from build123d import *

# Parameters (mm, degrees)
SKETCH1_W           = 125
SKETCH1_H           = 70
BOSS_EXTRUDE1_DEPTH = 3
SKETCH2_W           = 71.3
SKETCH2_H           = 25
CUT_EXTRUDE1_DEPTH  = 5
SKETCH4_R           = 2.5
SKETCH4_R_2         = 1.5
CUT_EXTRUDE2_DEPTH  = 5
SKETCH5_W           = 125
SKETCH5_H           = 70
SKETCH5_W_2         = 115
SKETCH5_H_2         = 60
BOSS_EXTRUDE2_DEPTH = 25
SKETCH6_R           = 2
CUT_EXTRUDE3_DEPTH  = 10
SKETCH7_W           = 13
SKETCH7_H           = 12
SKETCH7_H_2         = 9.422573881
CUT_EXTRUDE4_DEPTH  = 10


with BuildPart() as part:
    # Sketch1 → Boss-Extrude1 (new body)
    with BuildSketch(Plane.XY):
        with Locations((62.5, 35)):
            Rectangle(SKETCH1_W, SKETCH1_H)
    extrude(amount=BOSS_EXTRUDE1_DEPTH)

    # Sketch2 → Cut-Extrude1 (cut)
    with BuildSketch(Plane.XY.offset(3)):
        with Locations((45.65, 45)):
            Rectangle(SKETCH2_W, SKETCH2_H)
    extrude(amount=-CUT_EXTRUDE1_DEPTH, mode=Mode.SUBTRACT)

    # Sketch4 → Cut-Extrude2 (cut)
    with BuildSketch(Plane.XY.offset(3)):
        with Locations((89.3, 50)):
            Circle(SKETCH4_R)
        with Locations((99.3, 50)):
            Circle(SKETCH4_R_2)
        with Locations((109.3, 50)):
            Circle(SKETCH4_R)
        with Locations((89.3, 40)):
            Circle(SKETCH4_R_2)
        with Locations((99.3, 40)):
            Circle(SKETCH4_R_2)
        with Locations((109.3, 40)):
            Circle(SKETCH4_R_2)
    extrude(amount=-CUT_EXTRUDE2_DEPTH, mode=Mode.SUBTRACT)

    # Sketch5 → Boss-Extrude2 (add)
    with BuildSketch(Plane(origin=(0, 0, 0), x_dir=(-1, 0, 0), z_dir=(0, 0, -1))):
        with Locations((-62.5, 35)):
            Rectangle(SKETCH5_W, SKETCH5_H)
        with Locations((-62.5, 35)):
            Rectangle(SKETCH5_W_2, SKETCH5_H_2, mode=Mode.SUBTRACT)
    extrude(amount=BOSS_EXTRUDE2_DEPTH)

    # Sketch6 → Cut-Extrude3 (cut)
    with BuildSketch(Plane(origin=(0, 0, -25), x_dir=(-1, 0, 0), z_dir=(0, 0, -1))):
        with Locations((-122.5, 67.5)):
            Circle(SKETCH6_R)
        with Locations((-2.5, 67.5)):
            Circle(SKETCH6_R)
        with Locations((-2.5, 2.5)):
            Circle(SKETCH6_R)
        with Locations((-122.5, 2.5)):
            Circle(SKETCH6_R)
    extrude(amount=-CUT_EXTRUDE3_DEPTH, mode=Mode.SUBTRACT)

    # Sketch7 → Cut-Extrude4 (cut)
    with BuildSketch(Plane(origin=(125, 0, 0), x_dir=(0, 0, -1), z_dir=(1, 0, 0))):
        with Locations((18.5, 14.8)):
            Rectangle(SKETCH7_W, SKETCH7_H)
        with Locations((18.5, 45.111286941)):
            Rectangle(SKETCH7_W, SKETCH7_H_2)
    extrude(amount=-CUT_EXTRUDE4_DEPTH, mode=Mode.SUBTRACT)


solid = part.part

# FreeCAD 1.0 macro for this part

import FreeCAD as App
import Part
import Sketcher

V = App.Vector
Q = App.Units.Quantity


def add_polygon(sketch, points):
    """Adds a closed chain of lines whose ends are joined by coincident constraints."""
    first, n = sketch.GeometryCount, len(points)
    for a, b in zip(points, points[1:] + points[:1]):
        sketch.addGeometry(Part.LineSegment(App.Vector(*a, 0), App.Vector(*b, 0)), False)
    for i in range(n):
        sketch.addConstraint(Sketcher.Constraint("Coincident", first + i, 2, first + (i + 1) % n, 1))

doc = App.newDocument("Part")
params = doc.addObject("Spreadsheet::Sheet", "Params")
for row, (alias, value) in enumerate([
    ("sketch1_width", "125 mm"),
    ("sketch1_height", "70 mm"),
    ("pad1_length", "3 mm"),
    ("sketch2_height", "25 mm"),
    ("sketch2_width", "71.3 mm"),
    ("pocket1_length", "5 mm"),
    ("sketch3_diameter", "5 mm"),
    ("sketch3_diameter2", "3 mm"),
    ("pocket2_length", "5 mm"),
    ("sketch4_width", "125 mm"),
    ("sketch4_width2", "115 mm"),
    ("sketch4_height", "70 mm"),
    ("sketch4_height2", "60 mm"),
    ("pad2_length", "25 mm"),
    ("sketch5_diameter", "4 mm"),
    ("pocket3_length", "10 mm"),
    ("sketch6_width", "12 mm"),
    ("sketch6_height", "13 mm"),
    ("pocket4_length", "10 mm"),
], start=1):
    params.set(f"A{row}", alias)
    params.set(f"B{row}", "=" + value)
    params.setAlias(f"B{row}", alias)

body = doc.addObject("PartDesign::Body", "Body")

# Sketch on XY plane
sketch1 = doc.addObject("Sketcher::SketchObject", "Sketch")
body.addObject(sketch1)
sketch1.AttachmentSupport = (doc.XY_Plane, [""])
sketch1.MapMode = "FlatFace"
add_polygon(sketch1, [(0, 70), (0, 0), (125, 0), (125, 70)])  # lines 0-3
sketch1.addConstraint(Sketcher.Constraint("Vertical", 0))
sketch1.addConstraint(Sketcher.Constraint("Horizontal", 1))
sketch1.addConstraint(Sketcher.Constraint("Vertical", 2))
sketch1.addConstraint(Sketcher.Constraint("Horizontal", 3))
sketch1.addConstraint(Sketcher.Constraint("Coincident", 0, 2, -1, 1))
sketch1.addConstraint(Sketcher.Constraint("DistanceX", 1, 1, 1, 2, Q("125 mm")))
sketch1.addConstraint(Sketcher.Constraint("DistanceY", 0, 2, 0, 1, Q("70 mm")))
sketch1.setExpression("Constraints[9]", "Params.sketch1_width")
sketch1.setExpression("Constraints[10]", "Params.sketch1_height")
pad1 = doc.addObject("PartDesign::Pad", "Pad")
body.addObject(pad1)
pad1.Profile = sketch1
pad1.setExpression("Length", "Params.pad1_length")

# Sketch on XY plane
sketch2 = doc.addObject("Sketcher::SketchObject", "Sketch001")
body.addObject(sketch2)
sketch2.AttachmentSupport = (doc.XY_Plane, [""])
sketch2.MapMode = "FlatFace"
sketch2.AttachmentOffset = App.Placement(V(0, 0, 3), App.Rotation())
add_polygon(sketch2, [(10, 58), (10, 32), (81, 32), (81, 58)])  # lines 0-3
sketch2.addConstraint(Sketcher.Constraint("Vertical", 0))
sketch2.addConstraint(Sketcher.Constraint("Horizontal", 1))
sketch2.addConstraint(Sketcher.Constraint("Vertical", 2))
sketch2.addConstraint(Sketcher.Constraint("Horizontal", 3))
sketch2.addConstraint(Sketcher.Constraint("DistanceY", 0, 2, 0, 1, Q("25 mm")))
sketch2.addConstraint(Sketcher.Constraint("DistanceX", 1, 1, 1, 2, Q("71.3 mm")))
sketch2.addConstraint(Sketcher.Constraint("DistanceX", -1, 1, 0, 2, Q("10 mm")))
sketch2.addConstraint(Sketcher.Constraint("DistanceY", -1, 1, 0, 2, Q("32.5 mm")))
sketch2.setExpression("Constraints[8]", "Params.sketch2_height")
sketch2.setExpression("Constraints[9]", "Params.sketch2_width")
pocket1 = doc.addObject("PartDesign::Pocket", "Pocket")
body.addObject(pocket1)
pocket1.Profile = sketch2
pocket1.setExpression("Length", "Params.pocket1_length")

# Sketch on XY plane
sketch3 = doc.addObject("Sketcher::SketchObject", "Sketch002")
body.addObject(sketch3)
sketch3.AttachmentSupport = (doc.XY_Plane, [""])
sketch3.MapMode = "FlatFace"
sketch3.AttachmentOffset = App.Placement(V(0, 0, 3), App.Rotation())
sketch3.addGeometry(Part.Circle(V(89.3, 50, 0), V(0, 0, 1), 2.5), False)
sketch3.addGeometry(Part.Circle(V(99.3, 50, 0), V(0, 0, 1), 1.5), False)
sketch3.addGeometry(Part.Circle(V(109.3, 50, 0), V(0, 0, 1), 2.5), False)
sketch3.addGeometry(Part.Circle(V(89.3, 40, 0), V(0, 0, 1), 1.5), False)
sketch3.addGeometry(Part.Circle(V(99.3, 40, 0), V(0, 0, 1), 1.5), False)
sketch3.addGeometry(Part.Circle(V(109.3, 40, 0), V(0, 0, 1), 1.5), False)
sketch3.addConstraint(Sketcher.Constraint("Equal", 0, 2))
sketch3.addConstraint(Sketcher.Constraint("Equal", 1, 3))
sketch3.addConstraint(Sketcher.Constraint("Equal", 3, 4))
sketch3.addConstraint(Sketcher.Constraint("Equal", 4, 5))
sketch3.addConstraint(Sketcher.Constraint("Horizontal", 0, 3, 1, 3))
sketch3.addConstraint(Sketcher.Constraint("Horizontal", 1, 3, 2, 3))
sketch3.addConstraint(Sketcher.Constraint("Horizontal", 3, 3, 4, 3))
sketch3.addConstraint(Sketcher.Constraint("Horizontal", 4, 3, 5, 3))
sketch3.addConstraint(Sketcher.Constraint("Vertical", 0, 3, 3, 3))
sketch3.addConstraint(Sketcher.Constraint("Vertical", 1, 3, 4, 3))
sketch3.addConstraint(Sketcher.Constraint("Vertical", 2, 3, 5, 3))
sketch3.addConstraint(Sketcher.Constraint("Diameter", 0, Q("5 mm")))
sketch3.addConstraint(Sketcher.Constraint("Diameter", 1, Q("3 mm")))
sketch3.addConstraint(Sketcher.Constraint("DistanceY", -1, 1, 0, 3, Q("50 mm")))
sketch3.addConstraint(Sketcher.Constraint("DistanceY", -1, 1, 3, 3, Q("40 mm")))
sketch3.addConstraint(Sketcher.Constraint("DistanceX", 0, 3, 1, 3, Q("10 mm")))
sketch3.addConstraint(Sketcher.Constraint("DistanceX", 1, 3, 2, 3, Q("10 mm")))
sketch3.addConstraint(Sketcher.Constraint("DistanceX", -1, 1, 0, 3, Q("89.3 mm")))
sketch3.setExpression("Constraints[11]", "Params.sketch3_diameter")
sketch3.setExpression("Constraints[12]", "Params.sketch3_diameter2")
pocket2 = doc.addObject("PartDesign::Pocket", "Pocket001")
body.addObject(pocket2)
pocket2.Profile = sketch3
pocket2.setExpression("Length", "Params.pocket2_length")

# Sketch on XY plane
sketch4 = doc.addObject("Sketcher::SketchObject", "Sketch003")
body.addObject(sketch4)
sketch4.AttachmentSupport = (doc.XY_Plane, [""])
sketch4.MapMode = "FlatFace"
add_polygon(sketch4, [(125, 70), (125, 0), (0, 0), (0, 70)])  # lines 0-3
add_polygon(sketch4, [(5, 5), (120, 5), (120, 65), (5, 65)])  # lines 4-7
sketch4.addConstraint(Sketcher.Constraint("Vertical", 0))
sketch4.addConstraint(Sketcher.Constraint("Horizontal", 1))
sketch4.addConstraint(Sketcher.Constraint("Vertical", 2))
sketch4.addConstraint(Sketcher.Constraint("Horizontal", 3))
sketch4.addConstraint(Sketcher.Constraint("Horizontal", 4))
sketch4.addConstraint(Sketcher.Constraint("Vertical", 5))
sketch4.addConstraint(Sketcher.Constraint("Horizontal", 6))
sketch4.addConstraint(Sketcher.Constraint("Vertical", 7))
sketch4.addConstraint(Sketcher.Constraint("Coincident", 1, 2, -1, 1))
sketch4.addConstraint(Sketcher.Constraint("DistanceX", 1, 2, 1, 1, Q("125 mm")))
sketch4.addConstraint(Sketcher.Constraint("DistanceX", 4, 1, 4, 2, Q("115 mm")))
sketch4.addConstraint(Sketcher.Constraint("DistanceY", 0, 2, 0, 1, Q("70 mm")))
sketch4.addConstraint(Sketcher.Constraint("DistanceY", 5, 1, 5, 2, Q("60 mm")))
sketch4.addConstraint(Sketcher.Constraint("DistanceX", -1, 1, 4, 2, Q("120 mm")))
sketch4.addConstraint(Sketcher.Constraint("DistanceY", -1, 1, 4, 2, Q("5 mm")))
sketch4.setExpression("Constraints[17]", "Params.sketch4_width")
sketch4.setExpression("Constraints[18]", "Params.sketch4_width2")
sketch4.setExpression("Constraints[19]", "Params.sketch4_height")
sketch4.setExpression("Constraints[20]", "Params.sketch4_height2")
pad2 = doc.addObject("PartDesign::Pad", "Pad001")
body.addObject(pad2)
pad2.Profile = sketch4
pad2.setExpression("Length", "Params.pad2_length")
pad2.Reversed = True

# Sketch on XY plane
sketch5 = doc.addObject("Sketcher::SketchObject", "Sketch004")
body.addObject(sketch5)
sketch5.AttachmentSupport = (doc.XY_Plane, [""])
sketch5.MapMode = "FlatFace"
sketch5.AttachmentOffset = App.Placement(V(0, 0, -25), App.Rotation())
sketch5.addGeometry(Part.Circle(V(122.5, 67.5, 0), V(0, 0, 1), 2), False)
sketch5.addGeometry(Part.Circle(V(2.5, 67.5, 0), V(0, 0, 1), 2), False)
sketch5.addGeometry(Part.Circle(V(2.5, 2.5, 0), V(0, 0, 1), 2), False)
sketch5.addGeometry(Part.Circle(V(122.5, 2.5, 0), V(0, 0, 1), 2), False)
sketch5.addConstraint(Sketcher.Constraint("Equal", 0, 1))
sketch5.addConstraint(Sketcher.Constraint("Equal", 1, 2))
sketch5.addConstraint(Sketcher.Constraint("Equal", 2, 3))
sketch5.addConstraint(Sketcher.Constraint("Horizontal", 0, 3, 1, 3))
sketch5.addConstraint(Sketcher.Constraint("Horizontal", 2, 3, 3, 3))
sketch5.addConstraint(Sketcher.Constraint("Vertical", 1, 3, 2, 3))
sketch5.addConstraint(Sketcher.Constraint("Vertical", 0, 3, 3, 3))
sketch5.addConstraint(Sketcher.Constraint("Diameter", 0, Q("4 mm")))
sketch5.addConstraint(Sketcher.Constraint("DistanceX", 1, 3, 0, 3, Q("120 mm")))
sketch5.addConstraint(Sketcher.Constraint("DistanceY", 2, 3, 1, 3, Q("65 mm")))
sketch5.addConstraint(Sketcher.Constraint("DistanceX", -1, 1, 0, 3, Q("122.5 mm")))
sketch5.addConstraint(Sketcher.Constraint("DistanceY", -1, 1, 0, 3, Q("67.5 mm")))
sketch5.setExpression("Constraints[7]", "Params.sketch5_diameter")
pocket3 = doc.addObject("PartDesign::Pocket", "Pocket002")
body.addObject(pocket3)
pocket3.Profile = sketch5
pocket3.setExpression("Length", "Params.pocket3_length")
pocket3.Reversed = True

# Sketch on YZ plane
sketch6 = doc.addObject("Sketcher::SketchObject", "Sketch005")
body.addObject(sketch6)
sketch6.AttachmentSupport = (doc.YZ_Plane, [""])
sketch6.MapMode = "FlatFace"
sketch6.AttachmentOffset = App.Placement(V(0, 0, 125), App.Rotation())
add_polygon(sketch6, [(21, -12), (9, -12), (9, -25), (21, -25)])  # lines 0-3
add_polygon(sketch6, [(50, -12), (40, -12), (40, -25), (50, -25)])  # lines 4-7
sketch6.addConstraint(Sketcher.Constraint("Horizontal", 0))
sketch6.addConstraint(Sketcher.Constraint("Vertical", 1))
sketch6.addConstraint(Sketcher.Constraint("Horizontal", 2))
sketch6.addConstraint(Sketcher.Constraint("Vertical", 3))
sketch6.addConstraint(Sketcher.Constraint("Horizontal", 4))
sketch6.addConstraint(Sketcher.Constraint("Vertical", 5))
sketch6.addConstraint(Sketcher.Constraint("Horizontal", 6))
sketch6.addConstraint(Sketcher.Constraint("Vertical", 7))
sketch6.addConstraint(Sketcher.Constraint("Horizontal", 3, 2, 4, 2))
sketch6.addConstraint(Sketcher.Constraint("Horizontal", 2, 2, 5, 2))
sketch6.addConstraint(Sketcher.Constraint("DistanceX", 0, 2, 0, 1, Q("12 mm")))
sketch6.addConstraint(Sketcher.Constraint("DistanceY", 1, 2, 1, 1, Q("13 mm")))
sketch6.addConstraint(Sketcher.Constraint("DistanceY", 0, 2, -1, 1, Q("12 mm")))
sketch6.addConstraint(Sketcher.Constraint("DistanceX", -1, 1, 0, 2, Q("8.8 mm")))
sketch6.addConstraint(Sketcher.Constraint("DistanceX", -1, 1, 4, 2, Q("40.4 mm")))
sketch6.addConstraint(Sketcher.Constraint("DistanceX", 4, 2, 4, 1, Q("9.422574 mm")))
sketch6.setExpression("Constraints[18]", "Params.sketch6_width")
sketch6.setExpression("Constraints[19]", "Params.sketch6_height")
pocket4 = doc.addObject("PartDesign::Pocket", "Pocket003")
body.addObject(pocket4)
pocket4.Profile = sketch6
pocket4.setExpression("Length", "Params.pocket4_length")

doc.recompute()
